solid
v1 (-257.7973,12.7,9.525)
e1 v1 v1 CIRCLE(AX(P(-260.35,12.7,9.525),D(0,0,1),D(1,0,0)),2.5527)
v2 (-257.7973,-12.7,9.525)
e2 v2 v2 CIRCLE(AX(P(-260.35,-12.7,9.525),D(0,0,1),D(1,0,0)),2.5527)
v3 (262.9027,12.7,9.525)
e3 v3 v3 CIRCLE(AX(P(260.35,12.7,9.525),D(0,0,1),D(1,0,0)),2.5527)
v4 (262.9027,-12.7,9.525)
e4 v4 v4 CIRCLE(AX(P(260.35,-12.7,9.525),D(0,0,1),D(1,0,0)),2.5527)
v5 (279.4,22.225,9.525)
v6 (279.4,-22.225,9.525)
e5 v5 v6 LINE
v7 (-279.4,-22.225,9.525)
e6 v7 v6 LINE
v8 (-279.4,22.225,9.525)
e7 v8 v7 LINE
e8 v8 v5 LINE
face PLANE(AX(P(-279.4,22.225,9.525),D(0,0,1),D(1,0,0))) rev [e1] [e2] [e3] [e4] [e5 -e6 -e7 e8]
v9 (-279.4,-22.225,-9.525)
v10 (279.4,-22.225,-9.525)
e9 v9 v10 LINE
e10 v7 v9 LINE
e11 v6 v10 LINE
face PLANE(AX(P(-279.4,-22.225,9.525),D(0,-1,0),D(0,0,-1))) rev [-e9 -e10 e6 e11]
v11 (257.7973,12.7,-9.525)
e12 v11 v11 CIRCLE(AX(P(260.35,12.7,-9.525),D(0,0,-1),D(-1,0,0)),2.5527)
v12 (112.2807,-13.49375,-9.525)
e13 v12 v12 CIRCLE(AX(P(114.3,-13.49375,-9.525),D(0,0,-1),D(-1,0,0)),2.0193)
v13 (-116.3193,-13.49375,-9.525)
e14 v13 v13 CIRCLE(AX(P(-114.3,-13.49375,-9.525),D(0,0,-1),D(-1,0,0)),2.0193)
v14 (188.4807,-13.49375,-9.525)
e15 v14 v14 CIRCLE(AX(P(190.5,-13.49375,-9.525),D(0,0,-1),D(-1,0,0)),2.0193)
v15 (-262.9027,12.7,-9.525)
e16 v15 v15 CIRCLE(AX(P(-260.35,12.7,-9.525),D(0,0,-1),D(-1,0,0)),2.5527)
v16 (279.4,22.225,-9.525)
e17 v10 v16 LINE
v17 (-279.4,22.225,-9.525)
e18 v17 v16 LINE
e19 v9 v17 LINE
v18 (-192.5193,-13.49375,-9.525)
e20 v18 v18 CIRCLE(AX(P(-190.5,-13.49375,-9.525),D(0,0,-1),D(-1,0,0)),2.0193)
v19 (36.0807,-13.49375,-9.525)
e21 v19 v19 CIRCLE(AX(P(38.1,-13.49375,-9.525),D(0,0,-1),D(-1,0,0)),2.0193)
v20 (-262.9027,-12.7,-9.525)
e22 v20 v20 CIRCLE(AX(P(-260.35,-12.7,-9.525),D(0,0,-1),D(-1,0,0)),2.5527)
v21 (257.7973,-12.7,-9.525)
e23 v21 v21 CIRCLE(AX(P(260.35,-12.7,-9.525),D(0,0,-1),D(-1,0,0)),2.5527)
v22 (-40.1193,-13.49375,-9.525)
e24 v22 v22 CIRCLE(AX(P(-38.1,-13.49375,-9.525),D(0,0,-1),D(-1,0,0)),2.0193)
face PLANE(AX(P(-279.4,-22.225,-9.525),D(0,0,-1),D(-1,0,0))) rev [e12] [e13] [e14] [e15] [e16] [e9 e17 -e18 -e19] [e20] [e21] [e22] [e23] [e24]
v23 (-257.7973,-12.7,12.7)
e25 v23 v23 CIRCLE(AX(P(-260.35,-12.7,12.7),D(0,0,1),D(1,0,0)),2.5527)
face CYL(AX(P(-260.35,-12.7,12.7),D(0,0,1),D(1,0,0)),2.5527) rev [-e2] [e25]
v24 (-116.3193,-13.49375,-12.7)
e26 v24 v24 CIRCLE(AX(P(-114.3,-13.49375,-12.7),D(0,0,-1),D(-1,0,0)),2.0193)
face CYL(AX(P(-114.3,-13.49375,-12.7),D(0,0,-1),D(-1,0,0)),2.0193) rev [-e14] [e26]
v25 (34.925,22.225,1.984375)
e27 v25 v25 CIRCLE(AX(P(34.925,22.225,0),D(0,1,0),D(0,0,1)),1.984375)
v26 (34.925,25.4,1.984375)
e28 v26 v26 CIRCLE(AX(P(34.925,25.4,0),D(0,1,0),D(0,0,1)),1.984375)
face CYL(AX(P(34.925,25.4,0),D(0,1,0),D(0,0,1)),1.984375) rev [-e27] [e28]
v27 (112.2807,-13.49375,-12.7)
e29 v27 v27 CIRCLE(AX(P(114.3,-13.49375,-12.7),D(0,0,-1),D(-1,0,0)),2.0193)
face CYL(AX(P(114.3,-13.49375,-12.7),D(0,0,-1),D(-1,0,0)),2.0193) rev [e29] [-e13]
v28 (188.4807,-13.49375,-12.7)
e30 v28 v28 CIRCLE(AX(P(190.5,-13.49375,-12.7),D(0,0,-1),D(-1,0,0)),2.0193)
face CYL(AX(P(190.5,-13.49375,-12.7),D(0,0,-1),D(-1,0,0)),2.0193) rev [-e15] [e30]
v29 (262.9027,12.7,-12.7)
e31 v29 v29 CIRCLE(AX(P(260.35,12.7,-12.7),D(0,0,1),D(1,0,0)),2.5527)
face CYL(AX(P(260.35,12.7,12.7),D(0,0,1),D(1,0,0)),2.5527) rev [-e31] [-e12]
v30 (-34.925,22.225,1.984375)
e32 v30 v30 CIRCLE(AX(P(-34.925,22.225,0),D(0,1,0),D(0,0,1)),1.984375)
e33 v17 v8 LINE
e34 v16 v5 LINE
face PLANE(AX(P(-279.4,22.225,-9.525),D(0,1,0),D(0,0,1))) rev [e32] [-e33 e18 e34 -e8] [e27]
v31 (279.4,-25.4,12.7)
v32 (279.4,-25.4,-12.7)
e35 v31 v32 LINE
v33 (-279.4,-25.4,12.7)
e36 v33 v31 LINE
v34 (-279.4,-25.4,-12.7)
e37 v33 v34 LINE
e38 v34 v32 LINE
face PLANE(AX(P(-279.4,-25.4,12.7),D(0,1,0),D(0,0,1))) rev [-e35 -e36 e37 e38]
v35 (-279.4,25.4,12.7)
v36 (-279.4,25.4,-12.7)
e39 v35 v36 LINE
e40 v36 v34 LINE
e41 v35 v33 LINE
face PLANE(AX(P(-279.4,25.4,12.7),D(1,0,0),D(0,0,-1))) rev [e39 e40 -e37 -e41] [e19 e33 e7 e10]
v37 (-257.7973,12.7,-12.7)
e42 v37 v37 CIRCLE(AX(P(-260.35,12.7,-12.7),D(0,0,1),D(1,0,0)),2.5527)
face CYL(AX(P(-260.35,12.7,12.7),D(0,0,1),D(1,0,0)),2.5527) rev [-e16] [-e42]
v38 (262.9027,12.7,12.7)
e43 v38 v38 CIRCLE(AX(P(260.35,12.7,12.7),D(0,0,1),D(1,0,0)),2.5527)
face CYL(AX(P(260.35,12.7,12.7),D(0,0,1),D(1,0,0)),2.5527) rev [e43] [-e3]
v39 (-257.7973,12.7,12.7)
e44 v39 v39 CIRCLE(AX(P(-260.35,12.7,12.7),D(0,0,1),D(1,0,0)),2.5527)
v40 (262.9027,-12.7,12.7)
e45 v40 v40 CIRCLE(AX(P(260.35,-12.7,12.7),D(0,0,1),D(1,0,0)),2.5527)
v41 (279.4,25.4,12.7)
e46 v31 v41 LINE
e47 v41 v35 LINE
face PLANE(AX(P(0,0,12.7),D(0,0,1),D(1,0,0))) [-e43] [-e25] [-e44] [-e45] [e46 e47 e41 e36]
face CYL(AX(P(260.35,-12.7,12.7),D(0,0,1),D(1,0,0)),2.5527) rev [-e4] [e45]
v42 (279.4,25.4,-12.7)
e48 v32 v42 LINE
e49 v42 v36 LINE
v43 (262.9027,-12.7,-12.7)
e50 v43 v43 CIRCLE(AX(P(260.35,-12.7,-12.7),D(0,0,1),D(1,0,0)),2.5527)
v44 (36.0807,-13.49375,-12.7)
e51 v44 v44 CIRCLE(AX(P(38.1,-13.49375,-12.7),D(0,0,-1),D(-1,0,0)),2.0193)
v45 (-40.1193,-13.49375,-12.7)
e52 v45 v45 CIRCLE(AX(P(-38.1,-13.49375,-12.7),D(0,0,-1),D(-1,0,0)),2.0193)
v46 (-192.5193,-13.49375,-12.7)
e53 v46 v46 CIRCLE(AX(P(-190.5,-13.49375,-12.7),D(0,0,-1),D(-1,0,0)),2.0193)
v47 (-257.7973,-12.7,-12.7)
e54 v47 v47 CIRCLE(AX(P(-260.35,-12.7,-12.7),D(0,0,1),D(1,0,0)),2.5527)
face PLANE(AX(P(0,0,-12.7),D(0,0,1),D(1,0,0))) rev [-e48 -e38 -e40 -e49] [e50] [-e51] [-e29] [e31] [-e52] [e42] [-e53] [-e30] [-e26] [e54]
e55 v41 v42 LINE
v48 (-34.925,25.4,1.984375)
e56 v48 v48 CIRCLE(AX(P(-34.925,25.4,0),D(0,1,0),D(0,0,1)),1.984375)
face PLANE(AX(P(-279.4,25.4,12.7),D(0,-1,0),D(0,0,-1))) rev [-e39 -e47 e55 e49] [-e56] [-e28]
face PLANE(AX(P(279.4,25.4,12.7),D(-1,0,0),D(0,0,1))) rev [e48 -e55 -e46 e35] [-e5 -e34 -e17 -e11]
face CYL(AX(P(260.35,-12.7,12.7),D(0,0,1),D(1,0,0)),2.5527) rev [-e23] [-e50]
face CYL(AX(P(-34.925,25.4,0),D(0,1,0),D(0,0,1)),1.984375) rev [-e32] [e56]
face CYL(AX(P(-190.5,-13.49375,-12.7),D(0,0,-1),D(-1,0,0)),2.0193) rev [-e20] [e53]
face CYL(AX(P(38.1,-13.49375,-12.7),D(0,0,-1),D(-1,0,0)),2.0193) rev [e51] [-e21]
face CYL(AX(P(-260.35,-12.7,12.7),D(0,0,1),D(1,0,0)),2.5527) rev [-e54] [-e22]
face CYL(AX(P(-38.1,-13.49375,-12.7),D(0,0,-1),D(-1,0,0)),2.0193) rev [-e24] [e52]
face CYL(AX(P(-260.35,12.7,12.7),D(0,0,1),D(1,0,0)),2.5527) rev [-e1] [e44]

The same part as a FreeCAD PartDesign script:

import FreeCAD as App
import Part
import Sketcher
Q = App.Units.Quantity

doc = App.newDocument("Part")
body = doc.addObject("PartDesign::Body", "Body")

# Sketch on XY plane
sketch1 = doc.addObject("Sketcher::SketchObject", "Sketch")
body.addObject(sketch1)
sketch1.AttachmentSupport = (doc.XY_Plane, [""])
sketch1.MapMode = "FlatFace"
sketch1.addGeometry([
    Part.LineSegment(App.Vector(-279, 25, 0), App.Vector(-279, -25, 0)),
    Part.LineSegment(App.Vector(-279, -25, 0), App.Vector(279, -25, 0)),
    Part.LineSegment(App.Vector(279, -25, 0), App.Vector(279, 25, 0)),
    Part.LineSegment(App.Vector(279, 25, 0), App.Vector(-279, 25, 0)),
], False)
sketch1.addConstraint([
    Sketcher.Constraint("Coincident", 0, 2, 1, 1),
    Sketcher.Constraint("Coincident", 1, 2, 2, 1),
    Sketcher.Constraint("Coincident", 2, 2, 3, 1),
    Sketcher.Constraint("Coincident", 3, 2, 0, 1),
    Sketcher.Constraint("Vertical", 0),
    Sketcher.Constraint("Horizontal", 1),
    Sketcher.Constraint("Vertical", 2),
    Sketcher.Constraint("Horizontal", 3),
    Sketcher.Constraint("Symmetric", 0, 2, 2, 2, -1, 1),
    Sketcher.Constraint("DistanceX", 1, 1, 1, 2, Q("22 in")),
    Sketcher.Constraint("DistanceY", 0, 2, 0, 1, Q("2 in")),
])
pad1 = doc.addObject("PartDesign::Pad", "Pad")
body.addObject(pad1)
pad1.Profile = sketch1
pad1.Length = Q("1 in")
pad1.Midplane = True

# Sketch on YZ plane
sketch2 = doc.addObject("Sketcher::SketchObject", "Sketch001")
body.addObject(sketch2)
sketch2.AttachmentSupport = (doc.YZ_Plane, [""])
sketch2.MapMode = "FlatFace"
sketch2.AttachmentOffset = App.Placement(App.Vector(0, 0, 11 * 25.4), App.Rotation())
sketch2.addGeometry([
    Part.LineSegment(App.Vector(22, 10, 0), App.Vector(-22, 10, 0)),
    Part.LineSegment(App.Vector(-22, 10, 0), App.Vector(-22, -10, 0)),
    Part.LineSegment(App.Vector(-22, -10, 0), App.Vector(22, -10, 0)),
    Part.LineSegment(App.Vector(22, -10, 0), App.Vector(22, 10, 0)),
], False)
sketch2.addConstraint([
    Sketcher.Constraint("Coincident", 0, 2, 1, 1),
    Sketcher.Constraint("Coincident", 1, 2, 2, 1),
    Sketcher.Constraint("Coincident", 2, 2, 3, 1),
    Sketcher.Constraint("Coincident", 3, 2, 0, 1),
    Sketcher.Constraint("Horizontal", 0),
    Sketcher.Constraint("Vertical", 1),
    Sketcher.Constraint("Horizontal", 2),
    Sketcher.Constraint("Vertical", 3),
    Sketcher.Constraint("Symmetric", 0, 2, 2, 2, -1, 1),
    Sketcher.Constraint("DistanceX", 0, 2, 0, 1, Q("1.75 in")),
    Sketcher.Constraint("DistanceY", 1, 2, 1, 1, Q("0.75 in")),
])
pocket1 = doc.addObject("PartDesign::Pocket", "Pocket")
body.addObject(pocket1)
pocket1.Profile = sketch2
pocket1.Type = "ThroughAll"

# Sketch on XY plane
sketch3 = doc.addObject("Sketcher::SketchObject", "Sketch002")
body.addObject(sketch3)
sketch3.AttachmentSupport = (doc.XY_Plane, [""])
sketch3.MapMode = "FlatFace"
sketch3.AttachmentOffset = App.Placement(App.Vector(0, 0, 0.5 * 25.4), App.Rotation())
sketch3.addGeometry([
    Part.Circle(App.Vector(-260.4, 12.7, 0), App.Vector(0, 0, 1), 2.6),
    Part.Circle(App.Vector(-260.4, -12.7, 0), App.Vector(0, 0, 1), 2.6),
    Part.Circle(App.Vector(260.4, 12.7, 0), App.Vector(0, 0, 1), 2.6),
    Part.Circle(App.Vector(260.4, -12.7, 0), App.Vector(0, 0, 1), 2.6),
], False)
sketch3.addConstraint([
    Sketcher.Constraint("Equal", 0, 1),
    Sketcher.Constraint("Equal", 1, 2),
    Sketcher.Constraint("Equal", 2, 3),
    Sketcher.Constraint("Symmetric", 1, 3, 2, 3, -1, 1),
    Sketcher.Constraint("Symmetric", 0, 3, 3, 3, -1, 1),
    Sketcher.Constraint("Symmetric", 0, 3, 2, 3, -2),
    Sketcher.Constraint("Diameter", 0, Q("0.201 in")),
    Sketcher.Constraint("DistanceY", 1, 3, 0, 3, Q("1 in")),
    Sketcher.Constraint("DistanceX", 0, 3, 2, 3, Q("20.5 in")),
])
doc.recompute()
hole = doc.addObject("PartDesign::Hole", "Hole")
body.addObject(hole)
hole.Profile = sketch3
hole.ThreadType = "None"
hole.Diameter = Q("0.201 in")
hole.DepthType = "ThroughAll"

# Sketch on XY plane
sketch4 = doc.addObject("Sketcher::SketchObject", "Sketch003")
body.addObject(sketch4)
sketch4.AttachmentSupport = (doc.XY_Plane, [""])
sketch4.MapMode = "FlatFace"
sketch4.AttachmentOffset = App.Placement(App.Vector(0, 0, -0.5 * 25.4), App.Rotation())
sketch4.addGeometry([
    Part.Circle(App.Vector(190.5, -13.5, 0), App.Vector(0, 0, 1), 2),  # 0
    Part.Circle(App.Vector(114.3, -13.5, 0), App.Vector(0, 0, 1), 2),  # 1
    Part.Circle(App.Vector(38.1, -13.5, 0), App.Vector(0, 0, 1), 2),  # 2
    Part.Circle(App.Vector(-38.1, -13.5, 0), App.Vector(0, 0, 1), 2),  # 3
    Part.Circle(App.Vector(-114.3, -13.5, 0), App.Vector(0, 0, 1), 2),  # 4
    Part.Circle(App.Vector(-190.5, -13.5, 0), App.Vector(0, 0, 1), 2),  # 5
], False)
sketch4.addConstraint([
    Sketcher.Constraint("Equal", 0, 1),
    Sketcher.Constraint("Equal", 1, 2),
    Sketcher.Constraint("Equal", 2, 3),
    Sketcher.Constraint("Equal", 3, 4),
    Sketcher.Constraint("Equal", 4, 5),
    Sketcher.Constraint("Symmetric", 2, 3, 3, 3, -2),
    Sketcher.Constraint("Symmetric", 1, 3, 4, 3, -2),
    Sketcher.Constraint("Symmetric", 0, 3, 5, 3, -2),
    Sketcher.Constraint("Horizontal", 0, 3, 1, 3),
    Sketcher.Constraint("Horizontal", 1, 3, 2, 3),
    Sketcher.Constraint("Diameter", 0, Q("0.159 in")),
    Sketcher.Constraint("DistanceX", 1, 3, 0, 3, Q("3 in")),
    Sketcher.Constraint("DistanceX", 2, 3, 1, 3, Q("3 in")),
    Sketcher.Constraint("DistanceX", 3, 3, 2, 3, Q("3 in")),
    Sketcher.Constraint("DistanceY", 0, 3, -1, 1, Q("0.53125 in")),
])
doc.recompute()
hole2 = doc.addObject("PartDesign::Hole", "Hole001")
body.addObject(hole2)
hole2.Profile = sketch4
hole2.ThreadType = "None"
hole2.Diameter = Q("0.159 in")
hole2.DepthType = "Dimension"
hole2.Depth = Q("0.2 in")
hole2.DrillPoint = "Angled"
hole2.DrillPointAngle = 118
hole2.Reversed = True

# Sketch on XZ plane
sketch5 = doc.addObject("Sketcher::SketchObject", "Sketch004")
body.addObject(sketch5)
sketch5.AttachmentSupport = (doc.XZ_Plane, [""])
sketch5.MapMode = "FlatFace"
sketch5.AttachmentOffset = App.Placement(App.Vector(0, 0, -1 * 25.4), App.Rotation())
sketch5.addGeometry([
    Part.Circle(App.Vector(-34.9, 0, 0), App.Vector(0, 0, 1), 2),
    Part.Circle(App.Vector(34.9, 0, 0), App.Vector(0, 0, 1), 2),
], False)
sketch5.addConstraint([
    Sketcher.Constraint("Equal", 0, 1),
    Sketcher.Constraint("Symmetric", 0, 3, 1, 3, -1, 1),
    Sketcher.Constraint("PointOnObject", 0, 3, -1),
    Sketcher.Constraint("Diameter", 0, Q("0.15625 in")),
    Sketcher.Constraint("DistanceX", 0, 3, 1, 3, Q("2.75 in")),
])
doc.recompute()
hole3 = doc.addObject("PartDesign::Hole", "Hole002")
body.addObject(hole3)
hole3.Profile = sketch5
hole3.ThreadType = "None"
hole3.Diameter = Q("0.15625 in")
hole3.DepthType = "Dimension"
hole3.Depth = Q("0.2 in")
hole3.DrillPoint = "Angled"
hole3.DrillPointAngle = 118
hole3.Reversed = True

doc.recompute()
